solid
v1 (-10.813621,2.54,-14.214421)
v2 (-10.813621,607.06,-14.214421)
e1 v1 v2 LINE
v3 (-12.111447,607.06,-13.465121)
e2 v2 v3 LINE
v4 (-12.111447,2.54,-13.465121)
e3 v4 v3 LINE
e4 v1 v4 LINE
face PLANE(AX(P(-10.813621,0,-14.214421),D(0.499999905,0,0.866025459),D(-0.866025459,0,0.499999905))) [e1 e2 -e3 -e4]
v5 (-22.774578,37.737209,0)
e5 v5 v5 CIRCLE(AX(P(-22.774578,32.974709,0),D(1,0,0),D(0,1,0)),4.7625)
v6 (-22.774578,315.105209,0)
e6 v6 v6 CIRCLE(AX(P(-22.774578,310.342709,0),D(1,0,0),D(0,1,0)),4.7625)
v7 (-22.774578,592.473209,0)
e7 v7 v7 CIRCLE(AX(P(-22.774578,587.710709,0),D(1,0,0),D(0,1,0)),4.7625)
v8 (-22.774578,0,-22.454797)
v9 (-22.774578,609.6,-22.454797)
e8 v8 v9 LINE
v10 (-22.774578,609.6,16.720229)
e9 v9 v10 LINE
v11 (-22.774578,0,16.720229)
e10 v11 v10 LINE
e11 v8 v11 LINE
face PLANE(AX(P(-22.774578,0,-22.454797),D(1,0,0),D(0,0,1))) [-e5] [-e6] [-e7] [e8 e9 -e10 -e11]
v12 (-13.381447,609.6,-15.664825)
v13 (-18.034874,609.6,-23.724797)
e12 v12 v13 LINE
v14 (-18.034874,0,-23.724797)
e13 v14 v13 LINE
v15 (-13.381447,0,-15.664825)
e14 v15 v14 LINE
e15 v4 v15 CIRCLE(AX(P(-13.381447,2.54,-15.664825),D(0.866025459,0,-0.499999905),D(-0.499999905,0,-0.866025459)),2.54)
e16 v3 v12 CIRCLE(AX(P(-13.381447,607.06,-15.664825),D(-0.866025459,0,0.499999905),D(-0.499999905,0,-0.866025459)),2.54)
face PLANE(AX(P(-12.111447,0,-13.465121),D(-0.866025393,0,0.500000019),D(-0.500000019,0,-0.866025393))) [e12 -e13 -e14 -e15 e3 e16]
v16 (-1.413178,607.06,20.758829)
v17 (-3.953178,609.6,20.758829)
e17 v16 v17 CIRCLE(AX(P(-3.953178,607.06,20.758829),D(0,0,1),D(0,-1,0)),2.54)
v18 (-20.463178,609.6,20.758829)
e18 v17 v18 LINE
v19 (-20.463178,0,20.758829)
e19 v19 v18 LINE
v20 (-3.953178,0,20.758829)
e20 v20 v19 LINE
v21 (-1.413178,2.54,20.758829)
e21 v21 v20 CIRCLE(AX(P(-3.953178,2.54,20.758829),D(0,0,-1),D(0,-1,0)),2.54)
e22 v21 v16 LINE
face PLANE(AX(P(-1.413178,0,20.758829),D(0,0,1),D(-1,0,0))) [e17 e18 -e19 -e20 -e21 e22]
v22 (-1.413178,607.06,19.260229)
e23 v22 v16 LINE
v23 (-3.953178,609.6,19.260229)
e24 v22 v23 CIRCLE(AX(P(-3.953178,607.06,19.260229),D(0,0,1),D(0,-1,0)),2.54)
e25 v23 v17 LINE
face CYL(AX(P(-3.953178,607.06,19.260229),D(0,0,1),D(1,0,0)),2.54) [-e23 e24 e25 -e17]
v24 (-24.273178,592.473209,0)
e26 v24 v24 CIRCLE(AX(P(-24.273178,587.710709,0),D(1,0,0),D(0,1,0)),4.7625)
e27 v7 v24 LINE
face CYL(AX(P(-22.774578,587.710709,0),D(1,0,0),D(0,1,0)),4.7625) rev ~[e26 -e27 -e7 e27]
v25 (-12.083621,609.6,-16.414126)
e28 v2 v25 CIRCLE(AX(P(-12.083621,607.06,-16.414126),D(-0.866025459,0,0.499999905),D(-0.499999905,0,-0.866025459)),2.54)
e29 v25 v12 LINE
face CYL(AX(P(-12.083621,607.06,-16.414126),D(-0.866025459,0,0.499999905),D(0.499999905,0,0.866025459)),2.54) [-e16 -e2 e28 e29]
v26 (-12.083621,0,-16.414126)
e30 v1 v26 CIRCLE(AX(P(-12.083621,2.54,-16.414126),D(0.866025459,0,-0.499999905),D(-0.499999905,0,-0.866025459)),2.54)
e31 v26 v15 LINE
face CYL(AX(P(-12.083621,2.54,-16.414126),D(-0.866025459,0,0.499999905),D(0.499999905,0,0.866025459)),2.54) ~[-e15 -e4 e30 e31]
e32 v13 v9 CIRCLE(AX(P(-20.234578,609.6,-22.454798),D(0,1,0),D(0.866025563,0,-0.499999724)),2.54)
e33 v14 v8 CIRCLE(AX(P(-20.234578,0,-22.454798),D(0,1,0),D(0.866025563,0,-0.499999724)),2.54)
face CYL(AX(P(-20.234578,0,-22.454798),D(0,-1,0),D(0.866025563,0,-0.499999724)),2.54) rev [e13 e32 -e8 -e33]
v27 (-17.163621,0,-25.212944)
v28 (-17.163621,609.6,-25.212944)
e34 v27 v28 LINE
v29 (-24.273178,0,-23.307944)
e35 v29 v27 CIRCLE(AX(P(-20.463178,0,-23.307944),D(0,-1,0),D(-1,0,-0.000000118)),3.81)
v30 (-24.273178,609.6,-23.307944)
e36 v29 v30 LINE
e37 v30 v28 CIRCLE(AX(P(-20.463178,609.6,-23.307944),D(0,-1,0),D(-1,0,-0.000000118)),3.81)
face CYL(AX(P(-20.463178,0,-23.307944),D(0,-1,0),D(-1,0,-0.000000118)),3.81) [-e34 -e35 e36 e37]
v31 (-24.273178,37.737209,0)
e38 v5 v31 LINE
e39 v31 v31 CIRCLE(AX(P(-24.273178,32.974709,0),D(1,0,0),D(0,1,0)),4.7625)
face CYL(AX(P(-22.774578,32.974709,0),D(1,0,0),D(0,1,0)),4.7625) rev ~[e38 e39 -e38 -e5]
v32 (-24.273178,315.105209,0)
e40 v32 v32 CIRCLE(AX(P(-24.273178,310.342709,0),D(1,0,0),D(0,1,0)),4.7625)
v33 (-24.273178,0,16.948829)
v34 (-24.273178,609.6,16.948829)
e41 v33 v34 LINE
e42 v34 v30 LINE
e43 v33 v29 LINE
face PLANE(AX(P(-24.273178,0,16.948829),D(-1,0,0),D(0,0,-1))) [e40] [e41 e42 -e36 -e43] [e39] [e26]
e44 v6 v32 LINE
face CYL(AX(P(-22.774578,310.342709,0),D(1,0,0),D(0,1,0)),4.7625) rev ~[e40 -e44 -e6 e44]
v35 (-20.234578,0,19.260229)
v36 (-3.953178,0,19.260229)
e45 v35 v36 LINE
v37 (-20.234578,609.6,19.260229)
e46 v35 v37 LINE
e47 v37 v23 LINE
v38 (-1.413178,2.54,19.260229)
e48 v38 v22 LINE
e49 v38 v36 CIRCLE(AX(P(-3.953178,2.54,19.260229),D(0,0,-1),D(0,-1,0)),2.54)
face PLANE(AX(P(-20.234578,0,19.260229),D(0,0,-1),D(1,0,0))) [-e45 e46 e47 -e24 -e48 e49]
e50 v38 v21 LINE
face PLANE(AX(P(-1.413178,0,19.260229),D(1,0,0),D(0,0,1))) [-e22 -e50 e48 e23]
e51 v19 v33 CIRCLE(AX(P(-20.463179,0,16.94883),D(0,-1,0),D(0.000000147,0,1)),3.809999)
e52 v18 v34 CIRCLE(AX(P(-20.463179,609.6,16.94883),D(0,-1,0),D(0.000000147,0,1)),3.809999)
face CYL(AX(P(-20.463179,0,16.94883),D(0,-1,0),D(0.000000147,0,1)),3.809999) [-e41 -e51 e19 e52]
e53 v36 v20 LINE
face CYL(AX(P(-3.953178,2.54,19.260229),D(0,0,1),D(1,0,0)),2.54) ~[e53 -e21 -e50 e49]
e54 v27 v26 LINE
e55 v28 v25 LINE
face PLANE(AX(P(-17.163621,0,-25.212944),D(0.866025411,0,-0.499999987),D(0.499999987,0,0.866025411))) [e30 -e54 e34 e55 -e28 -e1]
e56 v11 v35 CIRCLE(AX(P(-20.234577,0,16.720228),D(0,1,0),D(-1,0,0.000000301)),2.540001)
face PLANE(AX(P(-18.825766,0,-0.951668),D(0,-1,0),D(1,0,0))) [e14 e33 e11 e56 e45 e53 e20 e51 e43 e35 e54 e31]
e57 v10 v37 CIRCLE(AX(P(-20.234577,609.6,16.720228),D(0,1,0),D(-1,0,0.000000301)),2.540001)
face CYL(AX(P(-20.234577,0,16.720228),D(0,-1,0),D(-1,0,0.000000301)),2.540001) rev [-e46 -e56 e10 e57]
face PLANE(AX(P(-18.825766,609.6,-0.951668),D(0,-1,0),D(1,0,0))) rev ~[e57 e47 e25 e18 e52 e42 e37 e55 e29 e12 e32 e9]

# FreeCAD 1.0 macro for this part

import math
import FreeCAD as App
import Part
import Sketcher
Q = App.Units.Quantity


def edges_at(feature, points):
    """Names of the edges that pass closest to the given points."""
    edges = feature.Shape.Edges
    near = lambda p: min(range(len(edges)), key=lambda i: edges[i].distToShape(Part.Vertex(*p))[0])
    return sorted({f"Edge{near(p) + 1}" for p in points})

doc = App.newDocument("Part")
body = doc.addObject("PartDesign::Body", "Body")

# Sketch on XZ plane
sketch1 = body.newObject("Sketcher::SketchObject", "Sketch")
sketch1.AttachmentSupport = (doc.getObject("XZ_Plane"), [""])
sketch1.MapMode = "FlatFace"
sketch1.addGeometry([
    Part.LineSegment(App.Vector(-20.2, 19.3, 0), App.Vector(-1.4, 19.3, 0)),  # 0
    Part.LineSegment(App.Vector(-1.4, 19.3, 0), App.Vector(-1.4, 20.8, 0)),  # 1
    Part.LineSegment(App.Vector(-1.4, 20.8, 0), App.Vector(-20.5, 20.8, 0)),  # 2
    Part.ArcOfCircle(Part.Circle(App.Vector(-20.5, 16.9, 0), App.Vector(0, 0, 1), 3.8), math.radians(90), math.radians(180)),  # 3
    Part.LineSegment(App.Vector(-24.3, 16.9, 0), App.Vector(-24.3, -23.3, 0)),  # 4
    Part.ArcOfCircle(Part.Circle(App.Vector(-20.5, -23.3, 0), App.Vector(0, 0, 1), 3.8), math.radians(-180), math.radians(-30)),  # 5
    Part.LineSegment(App.Vector(-17.2, -25.2, 0), App.Vector(-10.8, -14.2, 0)),  # 6
    Part.LineSegment(App.Vector(-10.8, -14.2, 0), App.Vector(-12.1, -13.5, 0)),  # 7
    Part.LineSegment(App.Vector(-12.1, -13.5, 0), App.Vector(-18, -23.7, 0)),  # 8
    Part.ArcOfCircle(Part.Circle(App.Vector(-20.2, -22.5, 0), App.Vector(0, 0, 1), 2.5), math.radians(180), math.radians(330)),  # 9
    Part.LineSegment(App.Vector(-22.8, -22.5, 0), App.Vector(-22.8, 16.7, 0)),  # 10
    Part.ArcOfCircle(Part.Circle(App.Vector(-20.2, 16.7, 0), App.Vector(0, 0, 1), 2.5), math.radians(90), math.radians(180)),  # 11
], False)
sketch1.addConstraint([
    Sketcher.Constraint("Coincident", 0, 2, 1, 1),
    Sketcher.Constraint("Coincident", 1, 2, 2, 1),
    Sketcher.Constraint("Tangent", 2, 2, 3, 1),
    Sketcher.Constraint("Tangent", 3, 2, 4, 1),
    Sketcher.Constraint("Tangent", 4, 2, 5, 1),
    Sketcher.Constraint("Tangent", 5, 2, 6, 1),
    Sketcher.Constraint("Coincident", 6, 2, 7, 1),
    Sketcher.Constraint("Coincident", 7, 2, 8, 1),
    Sketcher.Constraint("Tangent", 8, 2, 9, 2),
    Sketcher.Constraint("Tangent", 9, 1, 10, 1),
    Sketcher.Constraint("Tangent", 10, 2, 11, 2),
    Sketcher.Constraint("Tangent", 11, 1, 0, 1),
    Sketcher.Constraint("Horizontal", 0),
    Sketcher.Constraint("Vertical", 1),
    Sketcher.Constraint("Horizontal", 2),
    Sketcher.Constraint("Vertical", 4),
    Sketcher.Constraint("Vertical", 10),
    Sketcher.Constraint("Equal", 3, 5),
    Sketcher.Constraint("Equal", 9, 11),
    Sketcher.Constraint("Perpendicular", 6, 7),
    Sketcher.Constraint("Perpendicular", 7, 8),
    Sketcher.Constraint("Radius", 9, Q("0.1 in")),
    Sketcher.Constraint("Radius", 3, Q("0.15 in")),
    Sketcher.Constraint("Angle", 6, Q("60.000001 deg")),
    Sketcher.Constraint("Distance", 6, Q("0.5 in")),
    Sketcher.Constraint("DistanceX", 2, 2, 2, 1, Q("0.75 in")),
    Sketcher.Constraint("DistanceX", 0, 1, 0, 2, Q("0.741 in")),
    Sketcher.Constraint("DistanceY", 1, 1, 1, 2, Q("0.059 in")),
    Sketcher.Constraint("Distance", 7, Q("0.059 in")),
    Sketcher.Constraint("DistanceY", 4, 2, 4, 1, 40.256773),
    Sketcher.Constraint("DistanceX", 3, 3, -1, 1, 20.463179),
    Sketcher.Constraint("DistanceY", -1, 1, 3, 3, 16.94883),
])
pad1 = body.newObject("PartDesign::Pad", "Pad")
pad1.Profile = sketch1
pad1.Length = Q("24 in")
pad1.Reversed = True
doc.recompute()

fillet = body.newObject("PartDesign::Fillet", "Fillet")
fillet.Base = (pad1, edges_at(pad1, [
    (-1.413, 0, 20.01),
    (-11.463, 0, -13.84),
    (-11.463, 609.6, -13.84),
    (-1.413, 609.6, 20.01),
]))
fillet.Radius = Q("0.1 in")

# Sketch on YZ plane
sketch2 = body.newObject("Sketcher::SketchObject", "Sketch001")
sketch2.AttachmentSupport = (doc.getObject("YZ_Plane"), [""])
sketch2.MapMode = "FlatFace"
sketch2.AttachmentOffset = App.Placement(App.Vector(0, 0, -22.774578), App.Rotation())
sketch2.addGeometry([
    Part.Circle(App.Vector(33, 0, 0), App.Vector(0, 0, 1), 4.8),
    Part.Circle(App.Vector(310.3, 0, 0), App.Vector(0, 0, 1), 4.8),
    Part.Circle(App.Vector(587.7, 0, 0), App.Vector(0, 0, 1), 4.8),
], False)
sketch2.addConstraint([
    Sketcher.Constraint("Equal", 0, 1),
    Sketcher.Constraint("Equal", 1, 2),
    Sketcher.Constraint("PointOnObject", 0, 3, -1),
    Sketcher.Constraint("PointOnObject", 1, 3, -1),
    Sketcher.Constraint("PointOnObject", 2, 3, -1),
    Sketcher.Constraint("Diameter", 0, Q("0.375 in")),
    Sketcher.Constraint("DistanceX", 0, 3, 1, 3, Q("10.92 in")),
    Sketcher.Constraint("DistanceX", 1, 3, 2, 3, Q("10.92 in")),
    Sketcher.Constraint("DistanceX", -1, 1, 0, 3, 32.974709),
])
pocket1 = body.newObject("PartDesign::Pocket", "Pocket")
pocket1.Profile = sketch2
pocket1.Length = Q("1 in")

doc.recompute()
